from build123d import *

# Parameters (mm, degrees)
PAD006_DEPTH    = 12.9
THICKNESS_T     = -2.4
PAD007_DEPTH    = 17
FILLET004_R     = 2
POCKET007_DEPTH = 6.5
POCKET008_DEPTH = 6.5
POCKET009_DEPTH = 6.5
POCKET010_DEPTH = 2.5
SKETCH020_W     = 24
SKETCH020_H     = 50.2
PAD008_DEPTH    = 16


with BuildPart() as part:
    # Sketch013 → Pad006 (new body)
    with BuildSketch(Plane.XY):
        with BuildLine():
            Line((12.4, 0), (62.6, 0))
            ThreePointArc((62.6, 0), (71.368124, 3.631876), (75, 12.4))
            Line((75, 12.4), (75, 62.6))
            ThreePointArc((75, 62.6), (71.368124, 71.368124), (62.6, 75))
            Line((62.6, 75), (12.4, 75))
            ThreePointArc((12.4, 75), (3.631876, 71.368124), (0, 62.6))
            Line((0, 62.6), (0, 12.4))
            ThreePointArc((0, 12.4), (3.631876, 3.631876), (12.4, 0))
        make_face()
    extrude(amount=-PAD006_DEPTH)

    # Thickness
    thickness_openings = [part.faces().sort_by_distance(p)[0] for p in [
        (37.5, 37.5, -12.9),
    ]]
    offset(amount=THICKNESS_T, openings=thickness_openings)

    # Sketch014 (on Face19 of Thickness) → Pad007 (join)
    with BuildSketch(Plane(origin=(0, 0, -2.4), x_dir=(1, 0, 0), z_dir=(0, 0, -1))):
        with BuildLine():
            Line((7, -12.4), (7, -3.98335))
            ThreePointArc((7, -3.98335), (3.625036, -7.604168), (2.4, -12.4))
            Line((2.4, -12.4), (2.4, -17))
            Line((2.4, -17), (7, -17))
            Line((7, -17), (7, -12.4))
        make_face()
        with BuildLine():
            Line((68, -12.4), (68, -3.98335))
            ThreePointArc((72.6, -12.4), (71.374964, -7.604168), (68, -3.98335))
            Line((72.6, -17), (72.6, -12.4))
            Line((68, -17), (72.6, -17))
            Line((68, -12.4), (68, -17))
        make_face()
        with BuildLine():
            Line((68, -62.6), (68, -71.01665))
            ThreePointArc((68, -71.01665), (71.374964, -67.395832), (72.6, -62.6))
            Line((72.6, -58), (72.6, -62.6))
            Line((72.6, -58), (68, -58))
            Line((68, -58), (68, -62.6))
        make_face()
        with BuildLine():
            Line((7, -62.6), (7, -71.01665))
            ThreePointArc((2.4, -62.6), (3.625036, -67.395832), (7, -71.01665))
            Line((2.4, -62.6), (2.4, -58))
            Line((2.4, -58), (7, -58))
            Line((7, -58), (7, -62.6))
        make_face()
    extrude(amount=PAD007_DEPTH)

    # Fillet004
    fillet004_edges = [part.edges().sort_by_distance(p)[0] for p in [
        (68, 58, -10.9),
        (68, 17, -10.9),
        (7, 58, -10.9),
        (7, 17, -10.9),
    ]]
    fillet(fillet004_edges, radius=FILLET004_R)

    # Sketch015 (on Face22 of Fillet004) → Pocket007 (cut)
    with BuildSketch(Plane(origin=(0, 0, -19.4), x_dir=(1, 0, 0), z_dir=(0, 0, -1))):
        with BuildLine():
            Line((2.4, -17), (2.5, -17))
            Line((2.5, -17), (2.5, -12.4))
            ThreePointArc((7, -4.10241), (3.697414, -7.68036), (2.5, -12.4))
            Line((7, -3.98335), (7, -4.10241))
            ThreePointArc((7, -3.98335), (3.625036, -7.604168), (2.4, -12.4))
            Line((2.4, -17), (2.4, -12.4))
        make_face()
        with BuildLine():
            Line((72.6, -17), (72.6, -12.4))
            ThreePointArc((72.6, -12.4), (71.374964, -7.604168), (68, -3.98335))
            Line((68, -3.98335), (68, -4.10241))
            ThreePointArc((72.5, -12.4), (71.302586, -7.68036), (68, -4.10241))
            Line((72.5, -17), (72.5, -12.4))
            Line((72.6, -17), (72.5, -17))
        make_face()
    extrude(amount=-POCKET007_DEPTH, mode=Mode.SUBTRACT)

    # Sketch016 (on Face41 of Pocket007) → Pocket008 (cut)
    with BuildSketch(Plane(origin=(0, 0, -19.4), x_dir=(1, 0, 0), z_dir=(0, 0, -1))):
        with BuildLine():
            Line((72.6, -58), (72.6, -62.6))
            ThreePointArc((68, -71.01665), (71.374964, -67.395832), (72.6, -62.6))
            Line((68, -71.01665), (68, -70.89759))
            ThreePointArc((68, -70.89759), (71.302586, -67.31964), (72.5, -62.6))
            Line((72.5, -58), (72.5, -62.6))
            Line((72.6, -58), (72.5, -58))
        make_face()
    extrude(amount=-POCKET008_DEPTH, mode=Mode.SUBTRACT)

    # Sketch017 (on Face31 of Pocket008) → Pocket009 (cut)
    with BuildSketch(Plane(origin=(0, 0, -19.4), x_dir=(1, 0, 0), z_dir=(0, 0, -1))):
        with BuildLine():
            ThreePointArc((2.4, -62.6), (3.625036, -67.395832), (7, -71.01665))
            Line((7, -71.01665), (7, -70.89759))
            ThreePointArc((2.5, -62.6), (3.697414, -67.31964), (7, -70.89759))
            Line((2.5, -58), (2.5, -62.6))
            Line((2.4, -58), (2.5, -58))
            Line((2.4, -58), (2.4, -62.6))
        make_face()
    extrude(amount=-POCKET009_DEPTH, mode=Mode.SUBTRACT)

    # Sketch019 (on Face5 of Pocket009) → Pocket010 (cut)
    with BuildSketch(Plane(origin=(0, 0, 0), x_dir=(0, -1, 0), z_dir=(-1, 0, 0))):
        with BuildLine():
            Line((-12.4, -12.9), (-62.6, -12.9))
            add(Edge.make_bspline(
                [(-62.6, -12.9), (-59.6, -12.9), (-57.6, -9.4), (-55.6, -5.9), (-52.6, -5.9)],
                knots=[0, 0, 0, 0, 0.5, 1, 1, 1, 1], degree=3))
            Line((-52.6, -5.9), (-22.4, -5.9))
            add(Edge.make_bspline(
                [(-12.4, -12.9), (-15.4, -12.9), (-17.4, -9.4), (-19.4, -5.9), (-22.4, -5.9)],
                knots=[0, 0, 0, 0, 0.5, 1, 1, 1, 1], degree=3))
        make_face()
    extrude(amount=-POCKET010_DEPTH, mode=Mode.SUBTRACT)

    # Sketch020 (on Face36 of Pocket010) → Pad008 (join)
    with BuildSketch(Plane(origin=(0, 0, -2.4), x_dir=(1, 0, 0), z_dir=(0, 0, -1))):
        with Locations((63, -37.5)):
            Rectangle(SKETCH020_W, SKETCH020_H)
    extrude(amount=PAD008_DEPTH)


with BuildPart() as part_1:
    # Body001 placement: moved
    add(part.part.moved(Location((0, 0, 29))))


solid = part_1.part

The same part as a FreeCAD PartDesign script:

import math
import FreeCAD as App
import Part
import Sketcher

V = App.Vector
Q = App.Units.Quantity


def edges_at(feature, points):
    """Names of the edges that pass closest to the given points."""
    edges = feature.Shape.Edges
    near = lambda p: min(range(len(edges)), key=lambda i: edges[i].distToShape(Part.Vertex(*p))[0])
    return sorted({f"Edge{near(p) + 1}" for p in points})


def faces_at(feature, points):
    """Names of the faces that lie closest to the given points."""
    faces = feature.Shape.Faces
    near = lambda p: min(range(len(faces)), key=lambda i: faces[i].distToShape(Part.Vertex(*p))[0])
    return sorted({f"Face{near(p) + 1}" for p in points})

doc = App.newDocument("Part")
body = doc.addObject("PartDesign::Body", "Body")

sketch1 = body.newObject("Sketcher::SketchObject", "Sketch")
sketch1.AttachmentSupport = (doc.getObject("XY_Plane"), [""])
sketch1.MapMode = "FlatFace"
sketch1.addGeometry(Part.LineSegment(V(12, 0, 0), V(63, 0, 0)), False)
sketch1.addGeometry(Part.ArcOfCircle(Part.Circle(V(63, 12, 0), V(0, 0, 1), 12), math.radians(-90), math.radians(0)), False)
sketch1.addGeometry(Part.LineSegment(V(75, 12, 0), V(75, 63, 0)), False)
sketch1.addGeometry(Part.ArcOfCircle(Part.Circle(V(63, 63, 0), V(0, 0, 1), 12), math.radians(0), math.radians(90)), False)
sketch1.addGeometry(Part.LineSegment(V(63, 75, 0), V(12, 75, 0)), False)
sketch1.addGeometry(Part.ArcOfCircle(Part.Circle(V(12, 63, 0), V(0, 0, 1), 12), math.radians(90), math.radians(180)), False)
sketch1.addGeometry(Part.LineSegment(V(0, 63, 0), V(0, 12, 0)), False)
sketch1.addGeometry(Part.ArcOfCircle(Part.Circle(V(12, 12, 0), V(0, 0, 1), 12), math.radians(-180), math.radians(-90)), False)
sketch1.addConstraint(Sketcher.Constraint("Tangent", 0, 2, 1, 1))
sketch1.addConstraint(Sketcher.Constraint("Tangent", 1, 2, 2, 1))
sketch1.addConstraint(Sketcher.Constraint("Tangent", 2, 2, 3, 1))
sketch1.addConstraint(Sketcher.Constraint("Tangent", 3, 2, 4, 1))
sketch1.addConstraint(Sketcher.Constraint("Tangent", 4, 2, 5, 1))
sketch1.addConstraint(Sketcher.Constraint("Tangent", 5, 2, 6, 1))
sketch1.addConstraint(Sketcher.Constraint("Tangent", 6, 2, 7, 1))
sketch1.addConstraint(Sketcher.Constraint("Tangent", 7, 2, 0, 1))
sketch1.addConstraint(Sketcher.Constraint("Horizontal", 0))
sketch1.addConstraint(Sketcher.Constraint("Vertical", 2))
sketch1.addConstraint(Sketcher.Constraint("Horizontal", 4))
sketch1.addConstraint(Sketcher.Constraint("Vertical", 6))
sketch1.addConstraint(Sketcher.Constraint("Equal", 1, 3))
sketch1.addConstraint(Sketcher.Constraint("Equal", 3, 5))
sketch1.addConstraint(Sketcher.Constraint("Equal", 5, 7))
sketch1.addConstraint(Sketcher.Constraint("PointOnObject", 0, 2, -1))
sketch1.addConstraint(Sketcher.Constraint("PointOnObject", 5, 2, -2))
sketch1.addConstraint(Sketcher.Constraint("Equal", 4, 2))
sketch1.addConstraint(Sketcher.Constraint("Radius", 1, Q("12.4 mm")))
sketch1.addConstraint(Sketcher.Constraint("DistanceX", 0, 1, 0, 2, Q("50.2 mm")))
pad1 = body.newObject("PartDesign::Pad", "Pad")
pad1.Profile = sketch1
pad1.Length = 12.9
pad1.Reversed = True
doc.recompute()

thickness = body.newObject("PartDesign::Thickness", "Thickness")
thickness.Base = (pad1, faces_at(pad1, [(37.5, 37.5, -12.9)]))
thickness.Value = 2.4
thickness.Reversed = True
thickness.Join = "Arc"

sketch2 = body.newObject("Sketcher::SketchObject", "Sketch001")
sketch2.AttachmentSupport = (doc.getObject("XY_Plane"), [""])
sketch2.MapMode = "FlatFace"
sketch2.AttachmentOffset = App.Placement(V(0, 0, -2.4), App.Rotation())
sketch2.addGeometry(Part.ArcOfCircle(Part.Circle(V(12.4, 12.4, 0), V(0, 0, 1), 10), math.radians(-180), math.radians(-123)), False)
sketch2.addGeometry(Part.LineSegment(V(2.4, 12.4, 0), V(2.4, 17, 0)), False)
sketch2.addGeometry(Part.LineSegment(V(2.4, 17, 0), V(7, 17, 0)), False)
sketch2.addGeometry(Part.LineSegment(V(7, 17, 0), V(7, 4, 0)), False)
sketch2.addGeometry(Part.LineSegment(V(68, 4, 0), V(68, 17, 0)), False)
sketch2.addGeometry(Part.LineSegment(V(68, 17, 0), V(72.6, 17, 0)), False)
sketch2.addGeometry(Part.LineSegment(V(72.6, 17, 0), V(72.6, 12.4, 0)), False)
sketch2.addGeometry(Part.ArcOfCircle(Part.Circle(V(62.6, 12.4, 0), V(0, 0, 1), 10), math.radians(-57), math.radians(0)), False)
sketch2.addGeometry(Part.ArcOfCircle(Part.Circle(V(62.6, 62.6, 0), V(0, 0, 1), 10), math.radians(0), math.radians(57)), False)
sketch2.addGeometry(Part.LineSegment(V(72.6, 62.6, 0), V(72.6, 58, 0)), False)
sketch2.addGeometry(Part.LineSegment(V(72.6, 58, 0), V(68, 58, 0)), False)
sketch2.addGeometry(Part.LineSegment(V(68, 58, 0), V(68, 71, 0)), False)
sketch2.addGeometry(Part.ArcOfCircle(Part.Circle(V(12.4, 62.6, 0), V(0, 0, 1), 10), math.radians(123), math.radians(180)), False)
sketch2.addGeometry(Part.LineSegment(V(7, 71, 0), V(7, 58, 0)), False)
sketch2.addGeometry(Part.LineSegment(V(7, 58, 0), V(2.4, 58, 0)), False)
sketch2.addGeometry(Part.LineSegment(V(2.4, 58, 0), V(2.4, 62.6, 0)), False)
sketch2.addConstraint(Sketcher.Constraint("Tangent", 0, 1, 1, 1))
sketch2.addConstraint(Sketcher.Constraint("Coincident", 1, 2, 2, 1))
sketch2.addConstraint(Sketcher.Constraint("Coincident", 2, 2, 3, 1))
sketch2.addConstraint(Sketcher.Constraint("Coincident", 3, 2, 0, 2))
sketch2.addConstraint(Sketcher.Constraint("Coincident", 4, 2, 5, 1))
sketch2.addConstraint(Sketcher.Constraint("Coincident", 5, 2, 6, 1))
sketch2.addConstraint(Sketcher.Constraint("Tangent", 6, 2, 7, 2))
sketch2.addConstraint(Sketcher.Constraint("Coincident", 7, 1, 4, 1))
sketch2.addConstraint(Sketcher.Constraint("Tangent", 8, 1, 9, 1))
sketch2.addConstraint(Sketcher.Constraint("Coincident", 9, 2, 10, 1))
sketch2.addConstraint(Sketcher.Constraint("Coincident", 10, 2, 11, 1))
sketch2.addConstraint(Sketcher.Constraint("Coincident", 11, 2, 8, 2))
sketch2.addConstraint(Sketcher.Constraint("Coincident", 12, 1, 13, 1))
sketch2.addConstraint(Sketcher.Constraint("Coincident", 13, 2, 14, 1))
sketch2.addConstraint(Sketcher.Constraint("Coincident", 14, 2, 15, 1))
sketch2.addConstraint(Sketcher.Constraint("Tangent", 15, 2, 12, 2))
sketch2.addConstraint(Sketcher.Constraint("Vertical", 1))
sketch2.addConstraint(Sketcher.Constraint("Horizontal", 2))
sketch2.addConstraint(Sketcher.Constraint("Vertical", 3))
sketch2.addConstraint(Sketcher.Constraint("Vertical", 4))
sketch2.addConstraint(Sketcher.Constraint("Horizontal", 5))
sketch2.addConstraint(Sketcher.Constraint("Vertical", 6))
sketch2.addConstraint(Sketcher.Constraint("Vertical", 9))
sketch2.addConstraint(Sketcher.Constraint("Horizontal", 10))
sketch2.addConstraint(Sketcher.Constraint("Vertical", 11))
sketch2.addConstraint(Sketcher.Constraint("Vertical", 13))
sketch2.addConstraint(Sketcher.Constraint("Horizontal", 14))
sketch2.addConstraint(Sketcher.Constraint("Vertical", 15))
sketch2.addConstraint(Sketcher.Constraint("Equal", 0, 7))
sketch2.addConstraint(Sketcher.Constraint("Equal", 7, 8))
sketch2.addConstraint(Sketcher.Constraint("Equal", 8, 12))
sketch2.addConstraint(Sketcher.Constraint("Horizontal", 0, 3, 7, 3))
sketch2.addConstraint(Sketcher.Constraint("Horizontal", 8, 3, 12, 3))
sketch2.addConstraint(Sketcher.Constraint("Horizontal", 2, 2, 4, 2))
sketch2.addConstraint(Sketcher.Constraint("Horizontal", 3, 2, 7, 1))
sketch2.addConstraint(Sketcher.Constraint("Horizontal", 11, 2, 12, 1))
sketch2.addConstraint(Sketcher.Constraint("Horizontal", 10, 2, 13, 2))
sketch2.addConstraint(Sketcher.Constraint("Vertical", 7, 3, 8, 3))
sketch2.addConstraint(Sketcher.Constraint("Vertical", 0, 3, 12, 3))
sketch2.addConstraint(Sketcher.Constraint("Vertical", 7, 1, 10, 2))
sketch2.addConstraint(Sketcher.Constraint("Equal", 14, 1))
sketch2.addConstraint(Sketcher.Constraint("Equal", 6, 9))
sketch2.addConstraint(Sketcher.Constraint("Radius", 0, Q("10 mm")))
sketch2.addConstraint(Sketcher.Constraint("DistanceX", 2, 1, 2, 2, Q("4.6 mm")))
sketch2.addConstraint(Sketcher.Constraint("DistanceY", -1, 1, 1, 2, Q("17 mm")))
sketch2.addConstraint(Sketcher.Constraint("DistanceX", -1, 1, 2, 2, Q("7 mm")))
sketch2.addConstraint(Sketcher.Constraint("DistanceX", -1, 1, 4, 2, Q("68 mm")))
sketch2.addConstraint(Sketcher.Constraint("DistanceY", -1, 1, 9, 2, Q("58 mm")))
pad2 = body.newObject("PartDesign::Pad", "Pad001")
pad2.Profile = sketch2
pad2.Length = 17
pad2.Reversed = True
doc.recompute()

fillet = body.newObject("PartDesign::Fillet", "Fillet")
fillet.Base = (pad2, edges_at(pad2, [
    (68, 58, -10.9),
    (68, 17, -10.9),
    (7, 58, -10.9),
    (7, 17, -10.9),
]))
fillet.Radius = 2

sketch3 = body.newObject("Sketcher::SketchObject", "Sketch002")
sketch3.AttachmentSupport = (doc.getObject("XY_Plane"), [""])
sketch3.MapMode = "FlatFace"
sketch3.AttachmentOffset = App.Placement(V(0, 0, -19.4), App.Rotation())
sketch3.addGeometry(Part.LineSegment(V(2.4, 17, 0), V(2.5, 17, 0)), False)
sketch3.addGeometry(Part.LineSegment(V(2.5, 17, 0), V(2.5, 12.4, 0)), False)
sketch3.addGeometry(Part.ArcOfCircle(Part.Circle(V(12.4, 12.4, 0), V(0, 0, 1), 9.9), math.radians(180), math.radians(237)), False)
sketch3.addGeometry(Part.LineSegment(V(7, 4.1, 0), V(7, 3.98, 0)), False)
sketch3.addGeometry(Part.ArcOfCircle(Part.Circle(V(12.4, 12.4, 0), V(0, 0, 1), 10), math.radians(-180), math.radians(-123)), False)
sketch3.addGeometry(Part.LineSegment(V(2.4, 12.4, 0), V(2.4, 17, 0)), False)
sketch3.addGeometry(Part.LineSegment(V(72.6, 17, 0), V(72.6, 12.4, 0)), False)
sketch3.addGeometry(Part.ArcOfCircle(Part.Circle(V(62.6, 12.4, 0), V(0, 0, 1), 10), math.radians(-57), math.radians(0)), False)
sketch3.addGeometry(Part.LineSegment(V(68, 3.98, 0), V(68, 4.1, 0)), False)
sketch3.addGeometry(Part.ArcOfCircle(Part.Circle(V(62.6, 12.4, 0), V(0, 0, 1), 9.9), math.radians(-57), math.radians(0)), False)
sketch3.addGeometry(Part.LineSegment(V(72.5, 12.4, 0), V(72.5, 17, 0)), False)
sketch3.addGeometry(Part.LineSegment(V(72.5, 17, 0), V(72.6, 17, 0)), False)
sketch3.addConstraint(Sketcher.Constraint("Coincident", 0, 2, 1, 1))
sketch3.addConstraint(Sketcher.Constraint("Tangent", 1, 2, 2, 1))
sketch3.addConstraint(Sketcher.Constraint("Coincident", 2, 2, 3, 1))
sketch3.addConstraint(Sketcher.Constraint("Coincident", 3, 2, 4, 2))
sketch3.addConstraint(Sketcher.Constraint("Tangent", 4, 1, 5, 1))
sketch3.addConstraint(Sketcher.Constraint("Coincident", 5, 2, 0, 1))
sketch3.addConstraint(Sketcher.Constraint("Tangent", 6, 2, 7, 2))
sketch3.addConstraint(Sketcher.Constraint("Coincident", 7, 1, 8, 1))
sketch3.addConstraint(Sketcher.Constraint("Coincident", 8, 2, 9, 1))
sketch3.addConstraint(Sketcher.Constraint("Tangent", 9, 2, 10, 1))
sketch3.addConstraint(Sketcher.Constraint("Coincident", 10, 2, 11, 1))
sketch3.addConstraint(Sketcher.Constraint("Coincident", 11, 2, 6, 1))
sketch3.addConstraint(Sketcher.Constraint("Horizontal", 0))
sketch3.addConstraint(Sketcher.Constraint("Vertical", 1))
sketch3.addConstraint(Sketcher.Constraint("Vertical", 3))
sketch3.addConstraint(Sketcher.Constraint("Vertical", 5))
sketch3.addConstraint(Sketcher.Constraint("Vertical", 6))
sketch3.addConstraint(Sketcher.Constraint("Vertical", 8))
sketch3.addConstraint(Sketcher.Constraint("Vertical", 10))
sketch3.addConstraint(Sketcher.Constraint("Horizontal", 11))
sketch3.addConstraint(Sketcher.Constraint("Coincident", 4, 3, 2, 3))
sketch3.addConstraint(Sketcher.Constraint("Coincident", 9, 3, 7, 3))
sketch3.addConstraint(Sketcher.Constraint("Equal", 4, 7))
sketch3.addConstraint(Sketcher.Constraint("Equal", 2, 9))
sketch3.addConstraint(Sketcher.Constraint("Horizontal", 4, 3, 7, 3))
sketch3.addConstraint(Sketcher.Constraint("Horizontal", 3, 2, 7, 1))
sketch3.addConstraint(Sketcher.Constraint("Horizontal", 5, 2, 10, 2))
sketch3.addConstraint(Sketcher.Constraint("Radius", 4, Q("10 mm")))
sketch3.addConstraint(Sketcher.Constraint("Radius", 2, Q("9.899998 mm")))
sketch3.addConstraint(Sketcher.Constraint("DistanceY", 1, 2, 1, 1, Q("4.6 mm")))
sketch3.addConstraint(Sketcher.Constraint("DistanceY", -1, 1, 0, 2, Q("17 mm")))
sketch3.addConstraint(Sketcher.Constraint("DistanceX", -1, 1, 2, 2, Q("7 mm")))
sketch3.addConstraint(Sketcher.Constraint("DistanceX", -1, 1, 7, 1, Q("68 mm")))
sketch3.addConstraint(Sketcher.Constraint("DistanceX", -1, 1, 2, 3, Q("12.399998 mm")))
pocket1 = body.newObject("PartDesign::Pocket", "Pocket")
pocket1.Profile = sketch3
pocket1.Length = 6.5
pocket1.Reversed = True

sketch4 = body.newObject("Sketcher::SketchObject", "Sketch003")
sketch4.AttachmentSupport = (doc.getObject("XY_Plane"), [""])
sketch4.MapMode = "FlatFace"
sketch4.AttachmentOffset = App.Placement(V(0, 0, -19.4), App.Rotation())
sketch4.addGeometry(Part.LineSegment(V(72.6, 62.6, 0), V(72.6, 58, 0)), False)
sketch4.addGeometry(Part.LineSegment(V(72.6, 58, 0), V(72.5, 58, 0)), False)
sketch4.addGeometry(Part.LineSegment(V(72.5, 58, 0), V(72.5, 62.6, 0)), False)
sketch4.addGeometry(Part.ArcOfCircle(Part.Circle(V(62.6, 62.6, 0), V(0, 0, 1), 9.9), math.radians(0), math.radians(57)), False)
sketch4.addGeometry(Part.LineSegment(V(68, 70.9, 0), V(68, 71.02, 0)), False)
sketch4.addGeometry(Part.ArcOfCircle(Part.Circle(V(62.6, 62.6, 0), V(0, 0, 1), 10), math.radians(0), math.radians(57)), False)
sketch4.addConstraint(Sketcher.Constraint("Coincident", 0, 2, 1, 1))
sketch4.addConstraint(Sketcher.Constraint("Coincident", 1, 2, 2, 1))
sketch4.addConstraint(Sketcher.Constraint("Tangent", 2, 2, 3, 1))
sketch4.addConstraint(Sketcher.Constraint("Coincident", 3, 2, 4, 1))
sketch4.addConstraint(Sketcher.Constraint("Coincident", 4, 2, 5, 2))
sketch4.addConstraint(Sketcher.Constraint("Tangent", 5, 1, 0, 1))
sketch4.addConstraint(Sketcher.Constraint("Vertical", 0))
sketch4.addConstraint(Sketcher.Constraint("Horizontal", 1))
sketch4.addConstraint(Sketcher.Constraint("Vertical", 2))
sketch4.addConstraint(Sketcher.Constraint("Vertical", 4))
sketch4.addConstraint(Sketcher.Constraint("Coincident", 5, 3, 3, 3))
sketch4.addConstraint(Sketcher.Constraint("Radius", 5, Q("10 mm")))
sketch4.addConstraint(Sketcher.Constraint("Radius", 3, Q("9.899998 mm")))
sketch4.addConstraint(Sketcher.Constraint("DistanceY", 0, 2, 0, 1, Q("4.6 mm")))
sketch4.addConstraint(Sketcher.Constraint("DistanceY", -1, 1, 0, 2, Q("58 mm")))
sketch4.addConstraint(Sketcher.Constraint("DistanceX", -1, 1, 3, 2, Q("68 mm")))
sketch4.addConstraint(Sketcher.Constraint("DistanceX", -1, 1, 3, 3, Q("62.600002 mm")))
pocket2 = body.newObject("PartDesign::Pocket", "Pocket001")
pocket2.Profile = sketch4
pocket2.Length = 6.5
pocket2.Reversed = True

sketch5 = body.newObject("Sketcher::SketchObject", "Sketch004")
sketch5.AttachmentSupport = (doc.getObject("XY_Plane"), [""])
sketch5.MapMode = "FlatFace"
sketch5.AttachmentOffset = App.Placement(V(0, 0, -19.4), App.Rotation())
sketch5.addGeometry(Part.ArcOfCircle(Part.Circle(V(12.4, 62.6, 0), V(0, 0, 1), 10), math.radians(123), math.radians(180)), False)
sketch5.addGeometry(Part.LineSegment(V(7, 71.02, 0), V(7, 70.9, 0)), False)
sketch5.addGeometry(Part.ArcOfCircle(Part.Circle(V(12.4, 62.6, 0), V(0, 0, 1), 9.9), math.radians(123), math.radians(180)), False)
sketch5.addGeometry(Part.LineSegment(V(2.5, 62.6, 0), V(2.5, 58, 0)), False)
sketch5.addGeometry(Part.LineSegment(V(2.5, 58, 0), V(2.4, 58, 0)), False)
sketch5.addGeometry(Part.LineSegment(V(2.4, 58, 0), V(2.4, 62.6, 0)), False)
sketch5.addConstraint(Sketcher.Constraint("Coincident", 0, 1, 1, 1))
sketch5.addConstraint(Sketcher.Constraint("Coincident", 1, 2, 2, 1))
sketch5.addConstraint(Sketcher.Constraint("Tangent", 2, 2, 3, 1))
sketch5.addConstraint(Sketcher.Constraint("Coincident", 3, 2, 4, 1))
sketch5.addConstraint(Sketcher.Constraint("Coincident", 4, 2, 5, 1))
sketch5.addConstraint(Sketcher.Constraint("Tangent", 5, 2, 0, 2))
sketch5.addConstraint(Sketcher.Constraint("Vertical", 1))
sketch5.addConstraint(Sketcher.Constraint("Vertical", 3))
sketch5.addConstraint(Sketcher.Constraint("Horizontal", 4))
sketch5.addConstraint(Sketcher.Constraint("Vertical", 5))
sketch5.addConstraint(Sketcher.Constraint("Coincident", 2, 3, 0, 3))
sketch5.addConstraint(Sketcher.Constraint("Radius", 0, Q("10 mm")))
sketch5.addConstraint(Sketcher.Constraint("Radius", 2, Q("9.899998 mm")))
sketch5.addConstraint(Sketcher.Constraint("DistanceY", 3, 2, 3, 1, Q("4.6 mm")))
sketch5.addConstraint(Sketcher.Constraint("DistanceX", -1, 1, 0, 1, Q("7 mm")))
sketch5.addConstraint(Sketcher.Constraint("DistanceY", -1, 1, 3, 2, Q("58 mm")))
sketch5.addConstraint(Sketcher.Constraint("DistanceX", -1, 1, 0, 3, Q("12.4 mm")))
pocket3 = body.newObject("PartDesign::Pocket", "Pocket002")
pocket3.Profile = sketch5
pocket3.Length = 6.5
pocket3.Reversed = True

sketch6 = body.newObject("Sketcher::SketchObject", "Sketch005")
sketch6.AttachmentSupport = (doc.getObject("YZ_Plane"), [""])
sketch6.MapMode = "FlatFace"
sketch6.addGeometry(Part.LineSegment(V(62.6, -12.9, 0), V(12.4, -12.9, 0)), False)
sketch6.addGeometry(Part.BSplineCurve([V(12.4, -12.9, 0), V(15.4, -12.9, 0), V(17.4, -9.4, 0), V(19.4, -5.9, 0), V(22.4, -5.9, 0)], [4, 1, 4], [0, 0.5, 1], False, 3, [1, 1, 1, 1, 1], False), False)
sketch6.addGeometry(Part.LineSegment(V(22.4, -5.9, 0), V(52.6, -5.9, 0)), False)
sketch6.addGeometry(Part.BSplineCurve([V(62.6, -12.9, 0), V(59.6, -12.9, 0), V(57.6, -9.4, 0), V(55.6, -5.9, 0), V(52.6, -5.9, 0)], [4, 1, 4], [0, 0.5, 1], False, 3, [1, 1, 1, 1, 1], False), False)
sketch6.addConstraint(Sketcher.Constraint("Block", 1))
sketch6.addConstraint(Sketcher.Constraint("Block", 3))
sketch6.addConstraint(Sketcher.Constraint("Coincident", 0, 2, 1, 1))
sketch6.addConstraint(Sketcher.Constraint("Coincident", 1, 2, 2, 1))
sketch6.addConstraint(Sketcher.Constraint("Coincident", 2, 2, 3, 2))
sketch6.addConstraint(Sketcher.Constraint("Coincident", 3, 1, 0, 1))
pocket4 = body.newObject("PartDesign::Pocket", "Pocket003")
pocket4.Profile = sketch6
pocket4.Length = 2.5
pocket4.Reversed = True

sketch7 = body.newObject("Sketcher::SketchObject", "Sketch006")
sketch7.AttachmentSupport = (doc.getObject("XY_Plane"), [""])
sketch7.MapMode = "FlatFace"
sketch7.AttachmentOffset = App.Placement(V(0, 0, -2.4), App.Rotation())
sketch7.addGeometry(Part.LineSegment(V(51, 12, 0), V(51, 63, 0)), False)
sketch7.addGeometry(Part.LineSegment(V(51, 63, 0), V(75, 63, 0)), False)
sketch7.addGeometry(Part.LineSegment(V(75, 63, 0), V(75, 12, 0)), False)
sketch7.addGeometry(Part.LineSegment(V(75, 12, 0), V(51, 12, 0)), False)
sketch7.addConstraint(Sketcher.Constraint("Coincident", 0, 2, 1, 1))
sketch7.addConstraint(Sketcher.Constraint("Coincident", 1, 2, 2, 1))
sketch7.addConstraint(Sketcher.Constraint("Coincident", 2, 2, 3, 1))
sketch7.addConstraint(Sketcher.Constraint("Coincident", 3, 2, 0, 1))
sketch7.addConstraint(Sketcher.Constraint("Vertical", 0))
sketch7.addConstraint(Sketcher.Constraint("Horizontal", 1))
sketch7.addConstraint(Sketcher.Constraint("Vertical", 2))
sketch7.addConstraint(Sketcher.Constraint("Horizontal", 3))
sketch7.addConstraint(Sketcher.Constraint("DistanceX", 1, 1, 1, 2, Q("24 mm")))
sketch7.addConstraint(Sketcher.Constraint("DistanceY", 0, 1, 0, 2, Q("50.2 mm")))
sketch7.addConstraint(Sketcher.Constraint("DistanceX", -1, 1, 0, 2, Q("51 mm")))
sketch7.addConstraint(Sketcher.Constraint("DistanceY", -1, 1, 0, 2, Q("62.6 mm")))
pad3 = body.newObject("PartDesign::Pad", "Pad002")
pad3.Profile = sketch7
pad3.Length = 16
pad3.Reversed = True
body2 = doc.addObject("PartDesign::Body", "Body001")
doc.recompute()

body.Placement = App.Placement(V(0, 0, 29), App.Rotation(V(0, 0, 1), 0))
boolean = body2.newObject("PartDesign::Boolean", "Boolean")
boolean.Type = "Fuse"
boolean.addObjects([body])

doc.recompute()
